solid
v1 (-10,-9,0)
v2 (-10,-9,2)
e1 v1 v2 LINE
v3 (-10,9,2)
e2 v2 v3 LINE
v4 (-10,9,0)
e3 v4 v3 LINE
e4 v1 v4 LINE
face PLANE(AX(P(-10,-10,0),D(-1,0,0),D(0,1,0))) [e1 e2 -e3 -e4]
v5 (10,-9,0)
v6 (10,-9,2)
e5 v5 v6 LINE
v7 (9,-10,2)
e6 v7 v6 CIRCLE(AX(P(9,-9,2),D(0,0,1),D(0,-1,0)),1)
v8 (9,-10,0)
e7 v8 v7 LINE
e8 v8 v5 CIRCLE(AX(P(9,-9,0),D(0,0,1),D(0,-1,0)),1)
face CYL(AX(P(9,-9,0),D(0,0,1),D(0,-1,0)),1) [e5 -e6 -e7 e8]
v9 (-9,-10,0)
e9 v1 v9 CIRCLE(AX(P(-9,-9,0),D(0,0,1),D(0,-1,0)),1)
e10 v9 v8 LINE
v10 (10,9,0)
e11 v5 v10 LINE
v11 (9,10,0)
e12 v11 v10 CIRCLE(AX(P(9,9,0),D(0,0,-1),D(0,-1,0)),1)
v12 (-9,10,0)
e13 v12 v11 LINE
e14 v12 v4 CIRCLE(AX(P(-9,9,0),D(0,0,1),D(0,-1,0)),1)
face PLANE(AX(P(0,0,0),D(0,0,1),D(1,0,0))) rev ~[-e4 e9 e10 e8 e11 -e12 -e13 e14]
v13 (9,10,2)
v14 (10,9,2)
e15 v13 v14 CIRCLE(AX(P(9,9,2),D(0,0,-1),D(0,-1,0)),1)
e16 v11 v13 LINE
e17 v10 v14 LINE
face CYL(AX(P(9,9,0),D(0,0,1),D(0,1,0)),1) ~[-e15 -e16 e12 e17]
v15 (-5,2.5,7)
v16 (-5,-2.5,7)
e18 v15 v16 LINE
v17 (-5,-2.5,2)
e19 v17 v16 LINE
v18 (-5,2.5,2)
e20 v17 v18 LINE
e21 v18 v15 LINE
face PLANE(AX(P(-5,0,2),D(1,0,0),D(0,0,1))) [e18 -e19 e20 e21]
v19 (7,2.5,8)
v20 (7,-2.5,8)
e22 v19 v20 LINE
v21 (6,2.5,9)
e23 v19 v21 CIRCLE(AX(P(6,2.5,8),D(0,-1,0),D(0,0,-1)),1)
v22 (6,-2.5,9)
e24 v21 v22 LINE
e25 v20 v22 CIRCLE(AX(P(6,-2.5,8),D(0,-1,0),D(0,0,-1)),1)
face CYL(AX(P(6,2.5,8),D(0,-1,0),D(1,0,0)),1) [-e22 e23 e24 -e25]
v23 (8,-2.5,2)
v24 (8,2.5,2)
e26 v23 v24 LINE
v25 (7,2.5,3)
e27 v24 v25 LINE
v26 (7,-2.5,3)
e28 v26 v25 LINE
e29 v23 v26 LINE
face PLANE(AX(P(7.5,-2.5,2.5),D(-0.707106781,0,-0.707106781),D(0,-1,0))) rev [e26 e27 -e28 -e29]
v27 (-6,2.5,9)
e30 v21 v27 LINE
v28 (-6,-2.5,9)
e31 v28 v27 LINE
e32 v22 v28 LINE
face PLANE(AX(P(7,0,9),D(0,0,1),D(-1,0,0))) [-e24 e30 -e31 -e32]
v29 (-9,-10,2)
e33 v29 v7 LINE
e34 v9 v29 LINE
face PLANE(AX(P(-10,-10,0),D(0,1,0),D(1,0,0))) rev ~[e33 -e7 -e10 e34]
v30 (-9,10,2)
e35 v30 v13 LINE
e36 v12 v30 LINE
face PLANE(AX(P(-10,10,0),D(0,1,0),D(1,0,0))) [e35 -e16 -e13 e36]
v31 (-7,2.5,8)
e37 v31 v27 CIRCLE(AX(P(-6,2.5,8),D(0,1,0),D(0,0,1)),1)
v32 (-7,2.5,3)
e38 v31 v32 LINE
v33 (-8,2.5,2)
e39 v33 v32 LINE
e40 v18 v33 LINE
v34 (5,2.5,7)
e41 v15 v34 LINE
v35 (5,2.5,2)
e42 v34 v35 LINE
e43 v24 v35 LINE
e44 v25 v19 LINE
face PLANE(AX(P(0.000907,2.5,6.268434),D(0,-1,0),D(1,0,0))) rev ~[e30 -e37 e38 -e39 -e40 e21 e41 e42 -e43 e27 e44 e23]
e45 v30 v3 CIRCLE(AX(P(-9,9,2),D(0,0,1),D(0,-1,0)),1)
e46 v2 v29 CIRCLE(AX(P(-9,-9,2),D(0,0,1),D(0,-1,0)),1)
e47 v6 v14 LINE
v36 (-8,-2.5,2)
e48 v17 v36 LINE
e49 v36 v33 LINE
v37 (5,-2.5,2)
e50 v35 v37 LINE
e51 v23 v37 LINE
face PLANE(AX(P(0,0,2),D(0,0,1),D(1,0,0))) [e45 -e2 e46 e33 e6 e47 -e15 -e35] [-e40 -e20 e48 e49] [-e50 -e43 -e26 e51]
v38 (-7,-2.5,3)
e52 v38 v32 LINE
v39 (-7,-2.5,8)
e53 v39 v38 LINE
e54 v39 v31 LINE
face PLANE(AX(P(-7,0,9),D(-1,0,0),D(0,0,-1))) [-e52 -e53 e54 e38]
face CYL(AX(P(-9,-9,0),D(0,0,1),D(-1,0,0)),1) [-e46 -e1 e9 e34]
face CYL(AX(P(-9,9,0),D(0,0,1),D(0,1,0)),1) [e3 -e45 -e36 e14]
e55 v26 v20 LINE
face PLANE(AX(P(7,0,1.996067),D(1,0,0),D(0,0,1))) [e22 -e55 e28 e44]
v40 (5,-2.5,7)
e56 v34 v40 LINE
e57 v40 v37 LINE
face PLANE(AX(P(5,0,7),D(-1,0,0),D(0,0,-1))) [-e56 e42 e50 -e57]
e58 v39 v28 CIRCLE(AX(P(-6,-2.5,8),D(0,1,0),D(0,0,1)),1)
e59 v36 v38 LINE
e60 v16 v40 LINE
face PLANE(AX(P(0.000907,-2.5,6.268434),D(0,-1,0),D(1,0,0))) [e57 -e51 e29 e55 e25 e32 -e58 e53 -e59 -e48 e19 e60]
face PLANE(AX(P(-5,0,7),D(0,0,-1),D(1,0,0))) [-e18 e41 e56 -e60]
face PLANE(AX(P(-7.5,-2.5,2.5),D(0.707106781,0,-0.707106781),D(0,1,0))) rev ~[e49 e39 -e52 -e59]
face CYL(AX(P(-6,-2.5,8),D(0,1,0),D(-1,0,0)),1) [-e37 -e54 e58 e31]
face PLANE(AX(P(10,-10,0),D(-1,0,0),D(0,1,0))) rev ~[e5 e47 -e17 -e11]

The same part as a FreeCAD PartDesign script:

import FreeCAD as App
import Part
import Sketcher

V = App.Vector
Q = App.Units.Quantity


def edges_at(feature, points):
    """Names of the edges that pass closest to the given points."""
    edges = feature.Shape.Edges
    near = lambda p: min(range(len(edges)), key=lambda i: edges[i].distToShape(Part.Vertex(*p))[0])
    return sorted({f"Edge{near(p) + 1}" for p in points})

doc = App.newDocument("Part")
body = doc.addObject("PartDesign::Body", "Body")

# Sketch on XY plane
sketch1 = body.newObject("Sketcher::SketchObject", "Sketch")
sketch1.AttachmentSupport = (doc.getObject("XY_Plane"), [""])
sketch1.MapMode = "FlatFace"
sketch1.addGeometry([
    Part.LineSegment(V(-10, 10, 0), V(-10, -10, 0)),
    Part.LineSegment(V(-10, -10, 0), V(10, -10, 0)),
    Part.LineSegment(V(10, -10, 0), V(10, 10, 0)),
    Part.LineSegment(V(10, 10, 0), V(-10, 10, 0)),
], False)
sketch1.addConstraint([
    Sketcher.Constraint("Coincident", 0, 2, 1, 1),
    Sketcher.Constraint("Coincident", 1, 2, 2, 1),
    Sketcher.Constraint("Coincident", 2, 2, 3, 1),
    Sketcher.Constraint("Coincident", 3, 2, 0, 1),
    Sketcher.Constraint("Vertical", 0),
    Sketcher.Constraint("Horizontal", 1),
    Sketcher.Constraint("Vertical", 2),
    Sketcher.Constraint("Horizontal", 3),
    Sketcher.Constraint("Symmetric", 0, 2, 2, 2, -1, 1),
    Sketcher.Constraint("Equal", 3, 0),
    Sketcher.Constraint("DistanceX", 1, 1, 1, 2, Q("20 mm")),
])
pad1 = body.newObject("PartDesign::Pad", "Pad")
pad1.Profile = sketch1
pad1.Length = 2

# Sketch on XZ plane
sketch2 = body.newObject("Sketcher::SketchObject", "Sketch001")
sketch2.AttachmentSupport = (doc.getObject("XZ_Plane"), [""])
sketch2.MapMode = "FlatFace"
sketch2.addGeometry([
    Part.LineSegment(V(-5, 2, 0), V(-5, 7, 0)),  # 0
    Part.LineSegment(V(-5, 7, 0), V(5, 7, 0)),  # 1
    Part.LineSegment(V(5, 7, 0), V(5, 2, 0)),  # 2
    Part.LineSegment(V(5, 2, 0), V(7, 2, 0)),  # 3
    Part.LineSegment(V(7, 2, 0), V(7, 9, 0)),  # 4
    Part.LineSegment(V(7, 9, 0), V(-7, 9, 0)),  # 5
    Part.LineSegment(V(-7, 9, 0), V(-7, 2, 0)),  # 6
    Part.LineSegment(V(-7, 2, 0), V(-5, 2, 0)),  # 7
], False)
sketch2.addConstraint([
    Sketcher.Constraint("Coincident", 0, 2, 1, 1),
    Sketcher.Constraint("Coincident", 1, 2, 2, 1),
    Sketcher.Constraint("Coincident", 2, 2, 3, 1),
    Sketcher.Constraint("Coincident", 3, 2, 4, 1),
    Sketcher.Constraint("Coincident", 4, 2, 5, 1),
    Sketcher.Constraint("Coincident", 5, 2, 6, 1),
    Sketcher.Constraint("Coincident", 6, 2, 7, 1),
    Sketcher.Constraint("Coincident", 7, 2, 0, 1),
    Sketcher.Constraint("Vertical", 0),
    Sketcher.Constraint("Horizontal", 1),
    Sketcher.Constraint("Vertical", 2),
    Sketcher.Constraint("Horizontal", 3),
    Sketcher.Constraint("Vertical", 4),
    Sketcher.Constraint("Horizontal", 5),
    Sketcher.Constraint("Vertical", 6),
    Sketcher.Constraint("Horizontal", 7),
    Sketcher.Constraint("Equal", 3, 7),
    Sketcher.Constraint("DistanceX", 1, 1, 1, 2, Q("10 mm")),
    Sketcher.Constraint("DistanceX", 3, 1, 3, 2, Q("2 mm")),
    Sketcher.Constraint("DistanceY", 0, 1, 0, 2, Q("5 mm")),
    Sketcher.Constraint("DistanceY", 6, 2, 6, 1, Q("7 mm")),
    Sketcher.Constraint("DistanceX", 0, 2, -1, 1, Q("5 mm")),
    Sketcher.Constraint("DistanceY", -1, 1, 0, 2, Q("7 mm")),
    Sketcher.Constraint("DistanceY", 2, 2, 2, 1, Q("5.003933 mm")),
])
pad2 = body.newObject("PartDesign::Pad", "Pad001")
pad2.Profile = sketch2
pad2.Length = 5
pad2.Midplane = True
doc.recompute()

chamfer = body.newObject("PartDesign::Chamfer", "Chamfer")
chamfer.Base = (pad2, edges_at(pad2, [(7, 0, 2)]))
chamfer.Size = 1
doc.recompute()

chamfer2 = body.newObject("PartDesign::Chamfer", "Chamfer001")
chamfer2.Base = (chamfer, edges_at(chamfer, [(-7, 0, 2)]))
chamfer2.Size = 1
doc.recompute()

fillet = body.newObject("PartDesign::Fillet", "Fillet")
fillet.Base = (chamfer2, edges_at(chamfer2, [(-10, 10, 1)]))
fillet.Radius = 1
doc.recompute()

fillet2 = body.newObject("PartDesign::Fillet", "Fillet001")
fillet2.Base = (fillet, edges_at(fillet, [(10, -10, 1), (-10, -10, 1), (10, 10, 1)]))
fillet2.Radius = 1
doc.recompute()

fillet3 = body.newObject("PartDesign::Fillet", "Fillet002")
fillet3.Base = (fillet2, edges_at(fillet2, [(7, 0, 9), (-7, 0, 9)]))
fillet3.Radius = 1

doc.recompute()
